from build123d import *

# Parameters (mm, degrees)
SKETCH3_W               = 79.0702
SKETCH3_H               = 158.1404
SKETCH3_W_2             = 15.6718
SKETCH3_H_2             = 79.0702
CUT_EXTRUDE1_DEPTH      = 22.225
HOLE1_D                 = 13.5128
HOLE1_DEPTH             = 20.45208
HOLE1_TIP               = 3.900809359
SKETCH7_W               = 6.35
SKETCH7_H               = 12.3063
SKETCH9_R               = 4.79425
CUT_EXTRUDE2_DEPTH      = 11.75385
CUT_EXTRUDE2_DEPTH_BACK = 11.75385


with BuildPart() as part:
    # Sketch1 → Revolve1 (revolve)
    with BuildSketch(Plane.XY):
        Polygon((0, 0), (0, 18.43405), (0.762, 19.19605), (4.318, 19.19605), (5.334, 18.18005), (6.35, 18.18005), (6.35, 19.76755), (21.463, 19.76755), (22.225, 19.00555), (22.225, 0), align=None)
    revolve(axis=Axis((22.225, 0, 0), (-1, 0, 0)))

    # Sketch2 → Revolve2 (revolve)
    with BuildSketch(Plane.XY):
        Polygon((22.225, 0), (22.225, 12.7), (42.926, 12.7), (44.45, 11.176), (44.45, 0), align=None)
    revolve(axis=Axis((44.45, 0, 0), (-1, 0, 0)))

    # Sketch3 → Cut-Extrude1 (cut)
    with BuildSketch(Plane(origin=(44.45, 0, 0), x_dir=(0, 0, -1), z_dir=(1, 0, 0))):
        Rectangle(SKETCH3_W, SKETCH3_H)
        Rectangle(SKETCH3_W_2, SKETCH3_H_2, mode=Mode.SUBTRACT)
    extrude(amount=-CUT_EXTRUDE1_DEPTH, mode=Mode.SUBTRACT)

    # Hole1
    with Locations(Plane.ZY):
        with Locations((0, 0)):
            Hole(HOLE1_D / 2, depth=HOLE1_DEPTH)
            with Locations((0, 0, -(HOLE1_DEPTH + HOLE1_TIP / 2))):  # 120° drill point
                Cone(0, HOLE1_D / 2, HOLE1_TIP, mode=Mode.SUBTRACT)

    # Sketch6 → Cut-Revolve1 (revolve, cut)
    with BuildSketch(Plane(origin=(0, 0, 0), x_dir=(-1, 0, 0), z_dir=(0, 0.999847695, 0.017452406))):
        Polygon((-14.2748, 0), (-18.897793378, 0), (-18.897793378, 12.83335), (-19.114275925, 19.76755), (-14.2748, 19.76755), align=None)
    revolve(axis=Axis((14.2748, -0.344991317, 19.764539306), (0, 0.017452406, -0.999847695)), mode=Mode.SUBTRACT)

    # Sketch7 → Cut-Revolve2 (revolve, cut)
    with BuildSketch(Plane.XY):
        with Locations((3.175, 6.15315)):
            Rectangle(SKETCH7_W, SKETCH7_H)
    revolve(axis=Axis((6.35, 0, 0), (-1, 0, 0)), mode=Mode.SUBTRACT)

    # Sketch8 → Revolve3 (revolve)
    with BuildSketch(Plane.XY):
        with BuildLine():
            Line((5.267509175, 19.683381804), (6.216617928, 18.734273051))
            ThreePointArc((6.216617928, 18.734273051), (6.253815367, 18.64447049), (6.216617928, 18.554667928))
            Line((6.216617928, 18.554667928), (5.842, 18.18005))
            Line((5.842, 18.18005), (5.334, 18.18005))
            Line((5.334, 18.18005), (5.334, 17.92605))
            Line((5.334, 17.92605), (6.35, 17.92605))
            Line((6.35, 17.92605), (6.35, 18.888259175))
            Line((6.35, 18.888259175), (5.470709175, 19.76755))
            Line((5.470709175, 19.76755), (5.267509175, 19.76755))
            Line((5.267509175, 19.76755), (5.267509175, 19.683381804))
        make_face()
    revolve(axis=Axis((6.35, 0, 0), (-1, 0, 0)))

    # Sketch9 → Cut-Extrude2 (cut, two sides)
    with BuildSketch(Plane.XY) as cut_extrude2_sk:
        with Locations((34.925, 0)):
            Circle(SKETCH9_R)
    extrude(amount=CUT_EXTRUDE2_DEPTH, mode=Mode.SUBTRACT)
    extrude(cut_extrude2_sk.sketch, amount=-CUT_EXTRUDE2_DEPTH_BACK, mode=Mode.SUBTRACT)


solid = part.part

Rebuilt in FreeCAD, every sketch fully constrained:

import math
import FreeCAD as App
import Part
import Sketcher
from FreeCAD import Vector
Q = App.Units.Quantity

doc = App.newDocument("Part")
body = doc.addObject("PartDesign::Body", "Body")

# Sketch on XY plane
sketch1 = body.newObject("Sketcher::SketchObject", "Sketch")
sketch1.AttachmentSupport = (doc.getObject("XY_Plane"), [""])
sketch1.MapMode = "FlatFace"
sketch1.addGeometry([
    Part.LineSegment(Vector(0, 18.4, 0), Vector(0, 0, 0)),  # 0
    Part.LineSegment(Vector(0, 0, 0), Vector(22.2, 0, 0)),  # 1
    Part.LineSegment(Vector(22.2, 0, 0), Vector(22.2, 19, 0)),  # 2
    Part.LineSegment(Vector(22.2, 19, 0), Vector(21.5, 19.8, 0)),  # 3
    Part.LineSegment(Vector(21.5, 19.8, 0), Vector(6.3, 19.8, 0)),  # 4
    Part.LineSegment(Vector(6.3, 19.8, 0), Vector(6.3, 18.2, 0)),  # 5
    Part.LineSegment(Vector(6.3, 18.2, 0), Vector(5.3, 18.2, 0)),  # 6
    Part.LineSegment(Vector(5.3, 18.2, 0), Vector(4.3, 19.2, 0)),  # 7
    Part.LineSegment(Vector(4.3, 19.2, 0), Vector(0.8, 19.2, 0)),  # 8
    Part.LineSegment(Vector(0.8, 19.2, 0), Vector(0, 18.4, 0)),  # 9
], False)
sketch1.addConstraint([
    Sketcher.Constraint("Coincident", 0, 2, 1, 1),
    Sketcher.Constraint("Coincident", 1, 2, 2, 1),
    Sketcher.Constraint("Coincident", 2, 2, 3, 1),
    Sketcher.Constraint("Coincident", 3, 2, 4, 1),
    Sketcher.Constraint("Coincident", 4, 2, 5, 1),
    Sketcher.Constraint("Coincident", 5, 2, 6, 1),
    Sketcher.Constraint("Coincident", 6, 2, 7, 1),
    Sketcher.Constraint("Coincident", 7, 2, 8, 1),
    Sketcher.Constraint("Coincident", 8, 2, 9, 1),
    Sketcher.Constraint("Coincident", 9, 2, 0, 1),
    Sketcher.Constraint("Vertical", 0),
    Sketcher.Constraint("Horizontal", 1),
    Sketcher.Constraint("Vertical", 2),
    Sketcher.Constraint("Horizontal", 4),
    Sketcher.Constraint("Vertical", 5),
    Sketcher.Constraint("Horizontal", 6),
    Sketcher.Constraint("Horizontal", 8),
    Sketcher.Constraint("Coincident", 0, 2, -1, 1),
    Sketcher.Constraint("Parallel", 3, 7),
    Sketcher.Constraint("Perpendicular", 7, 9),
    Sketcher.Constraint("Equal", 3, 9),
    Sketcher.Constraint("Angle", 3, Q("135 deg")),
    Sketcher.Constraint("DistanceX", 6, 2, 6, 1, Q("0.04 in")),
    Sketcher.Constraint("DistanceX", 8, 2, 8, 1, Q("0.14 in")),
    Sketcher.Constraint("DistanceX", 1, 1, 1, 2, Q("0.875 in")),
    Sketcher.Constraint("DistanceX", 4, 2, 4, 1, Q("0.595 in")),
    Sketcher.Constraint("DistanceY", 5, 2, 5, 1, Q("0.0625 in")),
    Sketcher.Constraint("DistanceX", -1, 1, 4, 2, Q("0.25 in")),
    Sketcher.Constraint("DistanceY", 0, 2, 0, 1, Q("18.43405 mm")),
])
revolution = body.newObject("PartDesign::Revolution", "Revolution")
revolution.Profile = sketch1
revolution.ReferenceAxis = (sketch1, ["H_Axis"])
revolution.Angle = 360

# Sketch on XY plane
sketch2 = body.newObject("Sketcher::SketchObject", "Sketch001")
sketch2.AttachmentSupport = (doc.getObject("XY_Plane"), [""])
sketch2.MapMode = "FlatFace"
sketch2.addGeometry([
    Part.LineSegment(Vector(22.2, 12.7, 0), Vector(22.2, 0, 0)),  # 0
    Part.LineSegment(Vector(22.2, 0, 0), Vector(44.5, 0, 0)),  # 1
    Part.LineSegment(Vector(44.5, 0, 0), Vector(44.5, 11.2, 0)),  # 2
    Part.LineSegment(Vector(44.5, 11.2, 0), Vector(42.9, 12.7, 0)),  # 3
    Part.LineSegment(Vector(42.9, 12.7, 0), Vector(22.2, 12.7, 0)),  # 4
], False)
sketch2.addConstraint([
    Sketcher.Constraint("Coincident", 0, 2, 1, 1),
    Sketcher.Constraint("Coincident", 1, 2, 2, 1),
    Sketcher.Constraint("Coincident", 2, 2, 3, 1),
    Sketcher.Constraint("Coincident", 3, 2, 4, 1),
    Sketcher.Constraint("Coincident", 4, 2, 0, 1),
    Sketcher.Constraint("Vertical", 0),
    Sketcher.Constraint("Horizontal", 1),
    Sketcher.Constraint("Vertical", 2),
    Sketcher.Constraint("Horizontal", 4),
    Sketcher.Constraint("PointOnObject", 0, 2, -1),
    Sketcher.Constraint("DistanceY", 0, 2, 0, 1, Q("0.5 in")),
    Sketcher.Constraint("Angle", 3, Q("135 deg")),
    Sketcher.Constraint("DistanceY", 2, 1, 2, 2, Q("0.44 in")),
    Sketcher.Constraint("DistanceX", 1, 1, 1, 2, Q("0.875 in")),
    Sketcher.Constraint("DistanceX", -1, 1, 1, 2, Q("1.75 in")),
])
revolution2 = body.newObject("PartDesign::Revolution", "Revolution001")
revolution2.Profile = sketch2
revolution2.ReferenceAxis = (sketch2, ["H_Axis"])
revolution2.Angle = 360

# Sketch on YZ plane
sketch3 = body.newObject("Sketcher::SketchObject", "Sketch002")
sketch3.AttachmentSupport = (doc.getObject("YZ_Plane"), [""])
sketch3.MapMode = "FlatFace"
sketch3.AttachmentOffset = App.Placement(Vector(0, 0, 1.75 * 25.4), App.Rotation())
sketch3.addGeometry([
    Part.LineSegment(Vector(79, 40, 0), Vector(-79, 40, 0)),  # 0
    Part.LineSegment(Vector(-79, 40, 0), Vector(-79, -40, 0)),  # 1
    Part.LineSegment(Vector(-79, -40, 0), Vector(79, -40, 0)),  # 2
    Part.LineSegment(Vector(79, -40, 0), Vector(79, 40, 0)),  # 3
    Part.LineSegment(Vector(-40, -8, 0), Vector(-40, 8, 0)),  # 4
    Part.LineSegment(Vector(-40, 8, 0), Vector(40, 8, 0)),  # 5
    Part.LineSegment(Vector(40, 8, 0), Vector(40, -8, 0)),  # 6
    Part.LineSegment(Vector(40, -8, 0), Vector(-40, -8, 0)),  # 7
], False)
sketch3.addConstraint([
    Sketcher.Constraint("Coincident", 0, 2, 1, 1),
    Sketcher.Constraint("Coincident", 1, 2, 2, 1),
    Sketcher.Constraint("Coincident", 2, 2, 3, 1),
    Sketcher.Constraint("Coincident", 3, 2, 0, 1),
    Sketcher.Constraint("Coincident", 4, 2, 5, 1),
    Sketcher.Constraint("Coincident", 5, 2, 6, 1),
    Sketcher.Constraint("Coincident", 6, 2, 7, 1),
    Sketcher.Constraint("Coincident", 7, 2, 4, 1),
    Sketcher.Constraint("Horizontal", 0),
    Sketcher.Constraint("Vertical", 1),
    Sketcher.Constraint("Horizontal", 2),
    Sketcher.Constraint("Vertical", 3),
    Sketcher.Constraint("Vertical", 4),
    Sketcher.Constraint("Horizontal", 5),
    Sketcher.Constraint("Vertical", 6),
    Sketcher.Constraint("Horizontal", 7),
    Sketcher.Constraint("Symmetric", 0, 2, 2, 2, -1, 1),
    Sketcher.Constraint("Symmetric", 4, 2, 6, 2, -1, 1),
    Sketcher.Constraint("Equal", 7, 1),
    Sketcher.Constraint("DistanceX", 0, 2, 0, 1, Q("6.226 in")),
    Sketcher.Constraint("DistanceX", 5, 1, 5, 2, Q("3.113 in")),
    Sketcher.Constraint("DistanceY", 4, 1, 4, 2, Q("0.617 in")),
])
pocket1 = body.newObject("PartDesign::Pocket", "Pocket")
pocket1.Profile = sketch3
pocket1.Length = Q("0.875 in")

# Sketch on YZ plane
sketch4 = body.newObject("Sketcher::SketchObject", "Sketch003")
sketch4.AttachmentSupport = (doc.getObject("YZ_Plane"), [""])
sketch4.MapMode = "FlatFace"
sketch4.addGeometry(Part.Circle(Vector(0, 0, 0), Vector(0, 0, 1), 7), False)
sketch4.addConstraint([
    Sketcher.Constraint("Coincident", 0, 3, -1, 1),
    Sketcher.Constraint("Diameter", 0, Q("0.532 in")),
])
doc.recompute()
hole = body.newObject("PartDesign::Hole", "Hole")
hole.Profile = sketch4
hole.ThreadType = "None"
hole.Diameter = Q("0.532 in")
hole.DepthType = "Dimension"
hole.Depth = Q("0.8052 in")
hole.DrillPoint = "Angled"
hole.DrillPointAngle = 120
hole.Reversed = True

# Sketch on an angled plane
sketch5 = body.newObject("Sketcher::SketchObject", "Sketch004")
sketch5.Placement = App.Placement(Vector(0, 0, 0), App.Rotation(Vector(-1, 0, 0), Vector(0, -0.017452406, 0.999847695), Vector(0, 0.999847695, 0.017452406), "ZXY"))
sketch5.addGeometry([
    Part.LineSegment(Vector(-18.9, 0, 0), Vector(-14.3, 0, 0)),  # 0
    Part.LineSegment(Vector(-14.3, 0, 0), Vector(-14.3, 19.8, 0)),  # 1
    Part.LineSegment(Vector(-14.3, 19.8, 0), Vector(-19.1, 19.8, 0)),  # 2
    Part.LineSegment(Vector(-19.1, 19.8, 0), Vector(-18.9, 12.8, 0)),  # 3
    Part.LineSegment(Vector(-18.9, 12.8, 0), Vector(-18.9, 0, 0)),  # 4
], False)
sketch5.addGeometry(Part.LineSegment(Vector(-14.3, 19.8, 0), Vector(-14.3, 0, 0)), True)  # axis
sketch5.addConstraint([
    Sketcher.Constraint("Coincident", 0, 2, 1, 1),
    Sketcher.Constraint("Coincident", 1, 2, 2, 1),
    Sketcher.Constraint("Coincident", 2, 2, 3, 1),
    Sketcher.Constraint("Coincident", 3, 2, 4, 1),
    Sketcher.Constraint("Coincident", 4, 2, 0, 1),
    Sketcher.Constraint("Horizontal", 0),
    Sketcher.Constraint("Vertical", 1),
    Sketcher.Constraint("Horizontal", 2),
    Sketcher.Constraint("Vertical", 4),
    Sketcher.Constraint("Vertical", 5),
    Sketcher.Constraint("Coincident", 5, 1, 1, 2),
    Sketcher.Constraint("PointOnObject", 0, 2, -1),
    Sketcher.Constraint("PointOnObject", 5, 2, -1),
    Sketcher.Constraint("DistanceX", 0, 2, -1, 1, Q("0.562 in")),
    Sketcher.Constraint("DistanceY", 3, 2, 2, 2, Q("0.273 in")),
    Sketcher.Constraint("DistanceY", 1, 1, 1, 2, Q("19.76755 mm")),
    Sketcher.Constraint("Distance", 3, Q("6.937578 mm")),
    Sketcher.Constraint("DistanceX", 0, 1, 0, 2, Q("4.622993 mm")),
])
groove = body.newObject("PartDesign::Groove", "Groove")
groove.Profile = sketch5
groove.ReferenceAxis = (sketch5, ["Axis0"])
groove.Angle = 360

# Sketch on XY plane
sketch6 = body.newObject("Sketcher::SketchObject", "Sketch005")
sketch6.AttachmentSupport = (doc.getObject("XY_Plane"), [""])
sketch6.MapMode = "FlatFace"
sketch6.addGeometry([
    Part.LineSegment(Vector(0, 12, 0), Vector(0, 0, 0)),
    Part.LineSegment(Vector(0, 0, 0), Vector(6, 0, 0)),
    Part.LineSegment(Vector(6, 0, 0), Vector(6, 12, 0)),
    Part.LineSegment(Vector(6, 12, 0), Vector(0, 12, 0)),
], False)
sketch6.addConstraint([
    Sketcher.Constraint("Coincident", 0, 2, 1, 1),
    Sketcher.Constraint("Coincident", 1, 2, 2, 1),
    Sketcher.Constraint("Coincident", 2, 2, 3, 1),
    Sketcher.Constraint("Coincident", 3, 2, 0, 1),
    Sketcher.Constraint("Vertical", 0),
    Sketcher.Constraint("Horizontal", 1),
    Sketcher.Constraint("Vertical", 2),
    Sketcher.Constraint("Horizontal", 3),
    Sketcher.Constraint("Coincident", 0, 2, -1, 1),
    Sketcher.Constraint("DistanceX", 1, 1, 1, 2, Q("0.25 in")),
    Sketcher.Constraint("DistanceY", 0, 2, 0, 1, Q("0.4845 in")),
])
groove2 = body.newObject("PartDesign::Groove", "Groove001")
groove2.Profile = sketch6
groove2.ReferenceAxis = (sketch6, ["H_Axis"])
groove2.Angle = 360

# Sketch on XY plane
sketch7 = body.newObject("Sketcher::SketchObject", "Sketch006")
sketch7.AttachmentSupport = (doc.getObject("XY_Plane"), [""])
sketch7.MapMode = "FlatFace"
sketch7.addGeometry([
    Part.LineSegment(Vector(5.27, 19.68, 0), Vector(6.22, 18.73, 0)),  # 0
    Part.ArcOfCircle(Part.Circle(Vector(6.13, 18.64, 0), Vector(0, 0, 1), 0.13), math.radians(-45), math.radians(45)),  # 1
    Part.LineSegment(Vector(6.22, 18.55, 0), Vector(5.84, 18.18, 0)),  # 2
    Part.LineSegment(Vector(5.84, 18.18, 0), Vector(5.33, 18.18, 0)),  # 3
    Part.LineSegment(Vector(5.33, 18.18, 0), Vector(5.33, 17.93, 0)),  # 4
    Part.LineSegment(Vector(5.33, 17.93, 0), Vector(6.35, 17.93, 0)),  # 5
    Part.LineSegment(Vector(6.35, 17.93, 0), Vector(6.35, 18.89, 0)),  # 6
    Part.LineSegment(Vector(6.35, 18.89, 0), Vector(5.47, 19.77, 0)),  # 7
    Part.LineSegment(Vector(5.47, 19.77, 0), Vector(5.27, 19.77, 0)),  # 8
    Part.LineSegment(Vector(5.27, 19.77, 0), Vector(5.27, 19.68, 0)),  # 9
], False)
sketch7.addConstraint([
    Sketcher.Constraint("Tangent", 0, 2, 1, 2),
    Sketcher.Constraint("Tangent", 1, 1, 2, 1),
    Sketcher.Constraint("Coincident", 2, 2, 3, 1),
    Sketcher.Constraint("Coincident", 3, 2, 4, 1),
    Sketcher.Constraint("Coincident", 4, 2, 5, 1),
    Sketcher.Constraint("Coincident", 5, 2, 6, 1),
    Sketcher.Constraint("Coincident", 6, 2, 7, 1),
    Sketcher.Constraint("Coincident", 7, 2, 8, 1),
    Sketcher.Constraint("Coincident", 8, 2, 9, 1),
    Sketcher.Constraint("Coincident", 9, 2, 0, 1),
    Sketcher.Constraint("Horizontal", 3),
    Sketcher.Constraint("Vertical", 4),
    Sketcher.Constraint("Horizontal", 5),
    Sketcher.Constraint("Vertical", 6),
    Sketcher.Constraint("Horizontal", 8),
    Sketcher.Constraint("Vertical", 9),
    Sketcher.Constraint("Perpendicular", 0, 2),
    Sketcher.Constraint("Perpendicular", 2, 7),
    Sketcher.Constraint("Vertical", 0, 2, 1, 1),
    Sketcher.Constraint("Radius", 1, Q("0.005 in")),
    Sketcher.Constraint("DistanceX", 3, 2, 3, 1, Q("0.02 in")),
    Sketcher.Constraint("DistanceX", 5, 1, 5, 2, Q("0.04 in")),
    Sketcher.Constraint("DistanceY", 4, 2, 4, 1, Q("0.01 in")),
    Sketcher.Constraint("DistanceX", 8, 2, 8, 1, Q("0.008 in")),
    Sketcher.Constraint("DistanceX", -1, 1, 2, 2, Q("0.23 in")),
    Sketcher.Constraint("DistanceY", 3, 2, 7, 2, Q("0.0625 in")),
    Sketcher.Constraint("DistanceY", 6, 1, 6, 2, Q("0.962209 mm")),
    Sketcher.Constraint("DistanceY", 9, 2, 9, 1, Q("0.084168 mm")),
    Sketcher.Constraint("DistanceY", -1, 1, 1, 3, Q("18.64447 mm")),
])
revolution3 = body.newObject("PartDesign::Revolution", "Revolution002")
revolution3.Profile = sketch7
revolution3.ReferenceAxis = (sketch7, ["H_Axis"])
revolution3.Angle = 360

# Sketch on XY plane
sketch8 = body.newObject("Sketcher::SketchObject", "Sketch007")
sketch8.AttachmentSupport = (doc.getObject("XY_Plane"), [""])
sketch8.MapMode = "FlatFace"
sketch8.addGeometry(Part.Circle(Vector(34.9, 0, 0), Vector(0, 0, 1), 4.8), False)
sketch8.addConstraint([
    Sketcher.Constraint("PointOnObject", 0, 3, -1),
    Sketcher.Constraint("Diameter", 0, Q("0.3775 in")),
    Sketcher.Constraint("DistanceX", -1, 1, 0, 3, Q("1.375 in")),
])
pocket2 = body.newObject("PartDesign::Pocket", "Pocket001")
pocket2.Profile = sketch8
pocket2.Type = "ThroughAll"
pocket2.Midplane = True

doc.recompute()
